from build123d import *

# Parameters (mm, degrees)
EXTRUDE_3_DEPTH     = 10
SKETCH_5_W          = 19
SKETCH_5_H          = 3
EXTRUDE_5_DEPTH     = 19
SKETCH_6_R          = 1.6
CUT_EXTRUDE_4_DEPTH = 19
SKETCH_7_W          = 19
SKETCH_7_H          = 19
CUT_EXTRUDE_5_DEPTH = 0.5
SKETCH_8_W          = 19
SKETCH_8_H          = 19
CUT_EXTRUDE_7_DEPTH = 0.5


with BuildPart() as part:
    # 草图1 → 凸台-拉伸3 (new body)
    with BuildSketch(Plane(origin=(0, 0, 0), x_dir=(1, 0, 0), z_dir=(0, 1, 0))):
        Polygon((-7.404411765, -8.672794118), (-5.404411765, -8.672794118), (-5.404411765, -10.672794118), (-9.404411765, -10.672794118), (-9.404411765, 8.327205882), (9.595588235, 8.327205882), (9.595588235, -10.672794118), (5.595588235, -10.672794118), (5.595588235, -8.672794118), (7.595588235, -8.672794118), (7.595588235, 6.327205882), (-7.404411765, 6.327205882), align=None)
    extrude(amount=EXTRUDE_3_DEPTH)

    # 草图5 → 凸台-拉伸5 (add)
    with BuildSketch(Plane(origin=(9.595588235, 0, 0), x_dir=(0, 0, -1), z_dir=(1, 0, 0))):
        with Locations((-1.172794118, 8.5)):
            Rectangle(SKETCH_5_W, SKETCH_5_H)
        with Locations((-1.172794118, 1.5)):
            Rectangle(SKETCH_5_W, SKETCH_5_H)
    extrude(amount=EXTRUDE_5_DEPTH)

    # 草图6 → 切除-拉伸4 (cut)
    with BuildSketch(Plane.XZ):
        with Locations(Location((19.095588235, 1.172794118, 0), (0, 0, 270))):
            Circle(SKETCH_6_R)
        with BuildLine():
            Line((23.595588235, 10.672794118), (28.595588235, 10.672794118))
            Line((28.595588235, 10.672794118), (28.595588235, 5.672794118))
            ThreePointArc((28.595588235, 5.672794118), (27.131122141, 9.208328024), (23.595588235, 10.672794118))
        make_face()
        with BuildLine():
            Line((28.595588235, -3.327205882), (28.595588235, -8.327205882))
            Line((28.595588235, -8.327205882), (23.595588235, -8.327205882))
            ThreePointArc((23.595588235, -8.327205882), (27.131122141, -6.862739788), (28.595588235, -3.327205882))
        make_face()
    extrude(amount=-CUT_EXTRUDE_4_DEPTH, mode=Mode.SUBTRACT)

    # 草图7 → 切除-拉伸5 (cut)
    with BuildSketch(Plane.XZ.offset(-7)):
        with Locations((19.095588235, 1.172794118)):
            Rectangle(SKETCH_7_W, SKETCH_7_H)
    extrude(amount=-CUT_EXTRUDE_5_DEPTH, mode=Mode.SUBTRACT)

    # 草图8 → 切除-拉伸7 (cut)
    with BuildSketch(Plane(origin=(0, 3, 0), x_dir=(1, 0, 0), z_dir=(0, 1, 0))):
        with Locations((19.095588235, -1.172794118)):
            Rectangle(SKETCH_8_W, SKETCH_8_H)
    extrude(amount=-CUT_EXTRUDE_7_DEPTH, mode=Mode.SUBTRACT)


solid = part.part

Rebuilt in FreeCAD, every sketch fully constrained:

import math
import FreeCAD as App
import Part
import Sketcher

V = App.Vector


def add_polygon(sketch, points):
    """Adds a closed chain of lines whose ends are joined by coincident constraints."""
    first, n = sketch.GeometryCount, len(points)
    for a, b in zip(points, points[1:] + points[:1]):
        sketch.addGeometry(Part.LineSegment(App.Vector(*a, 0), App.Vector(*b, 0)), False)
    for i in range(n):
        sketch.addConstraint(Sketcher.Constraint("Coincident", first + i, 2, first + (i + 1) % n, 1))

doc = App.newDocument("Part")
params = doc.addObject("Spreadsheet::Sheet", "Params")
for row, (alias, value) in enumerate([
    ("sketch1_width", "2 mm"),
    ("sketch1_width2", "15 mm"),
    ("sketch1_width3", "4 mm"),
    ("pad1_length", "10 mm"),
    ("sketch2_width", "3 mm"),
    ("sketch2_height", "19 mm"),
    ("pad2_length", "19 mm"),
    ("sketch3_radius", "5 mm"),
    ("sketch3_diameter", "3.2 mm"),
    ("pocket1_length", "19 mm"),
    ("sketch4_width", "19 mm"),
    ("pocket2_length", "0.5 mm"),
    ("sketch5_width", "19 mm"),
    ("pocket3_length", "0.5 mm"),
], start=1):
    params.set(f"A{row}", alias)
    params.set(f"B{row}", "=" + value)
    params.setAlias(f"B{row}", alias)

body = doc.addObject("PartDesign::Body", "Body")

sketch1 = doc.addObject("Sketcher::SketchObject", "Sketch")
body.addObject(sketch1)
sketch1.AttachmentSupport = (doc.XZ_Plane, [""])
sketch1.MapMode = "FlatFace"
add_polygon(sketch1, [(-5.4, 8.7), (-7.4, 8.7), (-7.4, -6.3), (7.6, -6.3), (7.6, 8.7), (5.6, 8.7), (5.6, 10.7), (9.6, 10.7), (9.6, -8.3), (-9.4, -8.3), (-9.4, 10.7), (-5.4, 10.7)])
sketch1.addConstraint([
    Sketcher.Constraint("Horizontal", 0),
    Sketcher.Constraint("Vertical", 1),
    Sketcher.Constraint("Horizontal", 2),
    Sketcher.Constraint("Vertical", 3),
    Sketcher.Constraint("Horizontal", 4),
    Sketcher.Constraint("Vertical", 5),
    Sketcher.Constraint("Horizontal", 6),
    Sketcher.Constraint("Vertical", 7),
    Sketcher.Constraint("Horizontal", 8),
    Sketcher.Constraint("Vertical", 9),
    Sketcher.Constraint("Horizontal", 10),
    Sketcher.Constraint("Vertical", 11),
    Sketcher.Constraint("Horizontal", 0, 2, 3, 2),
    Sketcher.Constraint("Horizontal", 6, 2, 9, 2),
    Sketcher.Constraint("Equal", 0, 4),
    Sketcher.Constraint("Equal", 6, 10),
    Sketcher.Constraint("Equal", 2, 1),
    Sketcher.Constraint("Equal", 4, 5),
    Sketcher.Constraint("Equal", 8, 7),
    Sketcher.Constraint("DistanceX", 0, 2, 0, 1, 2.0),
    Sketcher.Constraint("DistanceX", 2, 1, 2, 2, 15.0),
    Sketcher.Constraint("DistanceX", 6, 1, 6, 2, 4.0),
    Sketcher.Constraint("DistanceX", 0, 2, -1, 1, 7.404412),
    Sketcher.Constraint("DistanceY", -1, 1, 0, 2, 8.672794),
])
sketch1.setExpression("Constraints[31]", "Params.sketch1_width")
sketch1.setExpression("Constraints[32]", "Params.sketch1_width2")
sketch1.setExpression("Constraints[33]", "Params.sketch1_width3")
pad1 = doc.addObject("PartDesign::Pad", "Pad")
body.addObject(pad1)
pad1.Profile = sketch1
pad1.setExpression("Length", "Params.pad1_length")
pad1.Reversed = True

sketch2 = doc.addObject("Sketcher::SketchObject", "Sketch001")
body.addObject(sketch2)
sketch2.AttachmentSupport = (doc.YZ_Plane, [""])
sketch2.MapMode = "FlatFace"
sketch2.AttachmentOffset = App.Placement(V(0, 0, 9.595588), App.Rotation())
add_polygon(sketch2, [(10, 10.7), (7, 10.7), (7, -8.3), (10, -8.3)])
add_polygon(sketch2, [(3, 10.7), (0, 10.7), (0, -8.3), (3, -8.3)])
sketch2.addConstraint([
    Sketcher.Constraint("Horizontal", 0),
    Sketcher.Constraint("Vertical", 1),
    Sketcher.Constraint("Horizontal", 2),
    Sketcher.Constraint("Vertical", 3),
    Sketcher.Constraint("Horizontal", 4),
    Sketcher.Constraint("Vertical", 5),
    Sketcher.Constraint("Horizontal", 6),
    Sketcher.Constraint("Vertical", 7),
    Sketcher.Constraint("PointOnObject", 4, 2, -2),
    Sketcher.Constraint("Horizontal", 3, 2, 4, 2),
    Sketcher.Constraint("Horizontal", 2, 2, 5, 2),
    Sketcher.Constraint("Equal", 2, 4),
    Sketcher.Constraint("DistanceX", 0, 2, 0, 1, 3.0),
    Sketcher.Constraint("DistanceY", 1, 2, 1, 1, 19.0),
    Sketcher.Constraint("DistanceX", -1, 1, 0, 2, 7.0),
    Sketcher.Constraint("DistanceY", -1, 1, 0, 2, 10.672794),
])
sketch2.setExpression("Constraints[20]", "Params.sketch2_width")
sketch2.setExpression("Constraints[21]", "Params.sketch2_height")
pad2 = doc.addObject("PartDesign::Pad", "Pad001")
body.addObject(pad2)
pad2.Profile = sketch2
pad2.setExpression("Length", "Params.pad2_length")

sketch3 = doc.addObject("Sketcher::SketchObject", "Sketch002")
body.addObject(sketch3)
sketch3.AttachmentSupport = (doc.XZ_Plane, [""])
sketch3.MapMode = "FlatFace"
sketch3.addGeometry([
    Part.Circle(V(19.1, 1.2, 0), V(0, 0, 1), 1.6),
    Part.LineSegment(V(28.6, 10.7, 0), V(23.6, 10.7, 0)),
    Part.ArcOfCircle(Part.Circle(V(23.6, 5.7, 0), V(0, 0, 1), 5), math.radians(0), math.radians(90)),
    Part.LineSegment(V(28.6, 5.7, 0), V(28.6, 10.7, 0)),
    Part.LineSegment(V(28.6, -8.3, 0), V(28.6, -3.3, 0)),
    Part.ArcOfCircle(Part.Circle(V(23.6, -3.3, 0), V(0, 0, 1), 5), math.radians(-90), math.radians(0)),
    Part.LineSegment(V(23.6, -8.3, 0), V(28.6, -8.3, 0)),
], False)
sketch3.addConstraint([
    Sketcher.Constraint("Tangent", 1, 2, 2, 2),
    Sketcher.Constraint("Tangent", 2, 1, 3, 1),
    Sketcher.Constraint("Coincident", 3, 2, 1, 1),
    Sketcher.Constraint("Tangent", 4, 2, 5, 2),
    Sketcher.Constraint("Tangent", 5, 1, 6, 1),
    Sketcher.Constraint("Coincident", 6, 2, 4, 1),
    Sketcher.Constraint("Horizontal", 1),
    Sketcher.Constraint("Vertical", 3),
    Sketcher.Constraint("Vertical", 4),
    Sketcher.Constraint("Horizontal", 6),
    Sketcher.Constraint("Equal", 2, 5),
    Sketcher.Constraint("Vertical", 2, 3, 5, 3),
    Sketcher.Constraint("Radius", 2, 5.0),
    Sketcher.Constraint("Diameter", 0, 3.2),
    Sketcher.Constraint("DistanceY", 5, 3, 2, 3, 9.0),
    Sketcher.Constraint("DistanceX", 0, 3, 2, 3, 4.5),
    Sketcher.Constraint("DistanceY", 0, 3, 2, 3, 4.5),
    Sketcher.Constraint("DistanceX", -1, 1, 0, 3, 19.095588),
    Sketcher.Constraint("DistanceY", -1, 1, 0, 3, 1.172794),
])
sketch3.setExpression("Constraints[12]", "Params.sketch3_radius")
sketch3.setExpression("Constraints[13]", "Params.sketch3_diameter")
pocket1 = doc.addObject("PartDesign::Pocket", "Pocket")
body.addObject(pocket1)
pocket1.Profile = sketch3
pocket1.setExpression("Length", "Params.pocket1_length")

sketch4 = doc.addObject("Sketcher::SketchObject", "Sketch003")
body.addObject(sketch4)
sketch4.AttachmentSupport = (doc.XZ_Plane, [""])
sketch4.MapMode = "FlatFace"
sketch4.AttachmentOffset = App.Placement(V(0, 0, -7), App.Rotation())
add_polygon(sketch4, [(10, 11), (10, -8), (29, -8), (29, 11)])
sketch4.addConstraint([
    Sketcher.Constraint("Vertical", 0),
    Sketcher.Constraint("Horizontal", 1),
    Sketcher.Constraint("Vertical", 2),
    Sketcher.Constraint("Horizontal", 3),
    Sketcher.Constraint("Equal", 3, 0),
    Sketcher.Constraint("DistanceX", 1, 1, 1, 2, 19.0),
    Sketcher.Constraint("DistanceX", -1, 1, 0, 2, 9.595588),
    Sketcher.Constraint("DistanceY", 0, 2, -1, 1, 8.327206),
])
sketch4.setExpression("Constraints[9]", "Params.sketch4_width")
pocket2 = doc.addObject("PartDesign::Pocket", "Pocket001")
body.addObject(pocket2)
pocket2.Profile = sketch4
pocket2.setExpression("Length", "Params.pocket2_length")

sketch5 = doc.addObject("Sketcher::SketchObject", "Sketch004")
body.addObject(sketch5)
sketch5.AttachmentSupport = (doc.XZ_Plane, [""])
sketch5.MapMode = "FlatFace"
sketch5.AttachmentOffset = App.Placement(V(0, 0, -3), App.Rotation())
add_polygon(sketch5, [(10, -8), (10, 11), (29, 11), (29, -8)])
sketch5.addConstraint([
    Sketcher.Constraint("Vertical", 0),
    Sketcher.Constraint("Horizontal", 1),
    Sketcher.Constraint("Vertical", 2),
    Sketcher.Constraint("Horizontal", 3),
    Sketcher.Constraint("Equal", 3, 0),
    Sketcher.Constraint("DistanceX", 1, 1, 1, 2, 19.0),
    Sketcher.Constraint("DistanceX", -1, 1, 0, 2, 9.595588),
    Sketcher.Constraint("DistanceY", -1, 1, 0, 2, 10.672794),
])
sketch5.setExpression("Constraints[9]", "Params.sketch5_width")
pocket3 = doc.addObject("PartDesign::Pocket", "Pocket002")
body.addObject(pocket3)
pocket3.Profile = sketch5
pocket3.setExpression("Length", "Params.pocket3_length")
pocket3.Reversed = True

doc.recompute()
